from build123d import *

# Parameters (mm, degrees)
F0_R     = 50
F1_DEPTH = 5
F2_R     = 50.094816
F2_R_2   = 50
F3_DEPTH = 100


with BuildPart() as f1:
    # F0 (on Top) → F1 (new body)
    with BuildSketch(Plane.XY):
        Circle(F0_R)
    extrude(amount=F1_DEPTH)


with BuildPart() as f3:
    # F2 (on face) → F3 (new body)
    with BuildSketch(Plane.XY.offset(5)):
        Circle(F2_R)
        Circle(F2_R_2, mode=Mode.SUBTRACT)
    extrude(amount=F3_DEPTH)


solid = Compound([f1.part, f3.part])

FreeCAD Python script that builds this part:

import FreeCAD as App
import Part
import Sketcher

doc = App.newDocument("Part")
params = doc.addObject("Spreadsheet::Sheet", "Params")
for row, (alias, value) in enumerate([
    ("sketch1_diameter", "100 mm"),
    ("pad1_length", "5 mm"),
    ("sketch2_diameter", "100 mm"),
    ("pad2_length", "100 mm"),
], start=1):
    params.set(f"A{row}", alias)
    params.set(f"B{row}", "=" + value)
    params.setAlias(f"B{row}", alias)

body = doc.addObject("PartDesign::Body", "Body")

sketch1 = doc.addObject("Sketcher::SketchObject", "Sketch")
body.addObject(sketch1)
sketch1.AttachmentSupport = (doc.XY_Plane, [""])
sketch1.MapMode = "FlatFace"
sketch1.addGeometry(Part.Circle(App.Vector(0, 0, 0), App.Vector(0, 0, 1), 50), False)
sketch1.addConstraint([
    Sketcher.Constraint("Coincident", 0, 3, -1, 1),
    Sketcher.Constraint("Diameter", 0, 100.0),
])
sketch1.setExpression("Constraints[1]", "Params.sketch1_diameter")
pad1 = doc.addObject("PartDesign::Pad", "Pad")
body.addObject(pad1)
pad1.Profile = sketch1
pad1.setExpression("Length", "Params.pad1_length")
body2 = doc.addObject("PartDesign::Body", "Body001")

sketch2 = doc.addObject("Sketcher::SketchObject", "Sketch001")
body2.addObject(sketch2)
sketch2.AttachmentSupport = (doc.getObject("XY_Plane001"), [""])
sketch2.MapMode = "FlatFace"
sketch2.AttachmentOffset = App.Placement(App.Vector(0, 0, 5), App.Rotation())
sketch2.addGeometry([
    Part.Circle(App.Vector(0, 0, 0), App.Vector(0, 0, 1), 50),
    Part.Circle(App.Vector(0, 0, 0), App.Vector(0, 0, 1), 50),
], False)
sketch2.addConstraint([
    Sketcher.Constraint("Coincident", 0, 3, -1, 1),
    Sketcher.Constraint("Coincident", 1, 3, -1, 1),
    Sketcher.Constraint("Diameter", 1, 100.0),
    Sketcher.Constraint("Diameter", 0, 100.189632),
])
sketch2.setExpression("Constraints[2]", "Params.sketch2_diameter")
pad2 = doc.addObject("PartDesign::Pad", "Pad001")
body2.addObject(pad2)
pad2.Profile = sketch2
pad2.setExpression("Length", "Params.pad2_length")

doc.recompute()
